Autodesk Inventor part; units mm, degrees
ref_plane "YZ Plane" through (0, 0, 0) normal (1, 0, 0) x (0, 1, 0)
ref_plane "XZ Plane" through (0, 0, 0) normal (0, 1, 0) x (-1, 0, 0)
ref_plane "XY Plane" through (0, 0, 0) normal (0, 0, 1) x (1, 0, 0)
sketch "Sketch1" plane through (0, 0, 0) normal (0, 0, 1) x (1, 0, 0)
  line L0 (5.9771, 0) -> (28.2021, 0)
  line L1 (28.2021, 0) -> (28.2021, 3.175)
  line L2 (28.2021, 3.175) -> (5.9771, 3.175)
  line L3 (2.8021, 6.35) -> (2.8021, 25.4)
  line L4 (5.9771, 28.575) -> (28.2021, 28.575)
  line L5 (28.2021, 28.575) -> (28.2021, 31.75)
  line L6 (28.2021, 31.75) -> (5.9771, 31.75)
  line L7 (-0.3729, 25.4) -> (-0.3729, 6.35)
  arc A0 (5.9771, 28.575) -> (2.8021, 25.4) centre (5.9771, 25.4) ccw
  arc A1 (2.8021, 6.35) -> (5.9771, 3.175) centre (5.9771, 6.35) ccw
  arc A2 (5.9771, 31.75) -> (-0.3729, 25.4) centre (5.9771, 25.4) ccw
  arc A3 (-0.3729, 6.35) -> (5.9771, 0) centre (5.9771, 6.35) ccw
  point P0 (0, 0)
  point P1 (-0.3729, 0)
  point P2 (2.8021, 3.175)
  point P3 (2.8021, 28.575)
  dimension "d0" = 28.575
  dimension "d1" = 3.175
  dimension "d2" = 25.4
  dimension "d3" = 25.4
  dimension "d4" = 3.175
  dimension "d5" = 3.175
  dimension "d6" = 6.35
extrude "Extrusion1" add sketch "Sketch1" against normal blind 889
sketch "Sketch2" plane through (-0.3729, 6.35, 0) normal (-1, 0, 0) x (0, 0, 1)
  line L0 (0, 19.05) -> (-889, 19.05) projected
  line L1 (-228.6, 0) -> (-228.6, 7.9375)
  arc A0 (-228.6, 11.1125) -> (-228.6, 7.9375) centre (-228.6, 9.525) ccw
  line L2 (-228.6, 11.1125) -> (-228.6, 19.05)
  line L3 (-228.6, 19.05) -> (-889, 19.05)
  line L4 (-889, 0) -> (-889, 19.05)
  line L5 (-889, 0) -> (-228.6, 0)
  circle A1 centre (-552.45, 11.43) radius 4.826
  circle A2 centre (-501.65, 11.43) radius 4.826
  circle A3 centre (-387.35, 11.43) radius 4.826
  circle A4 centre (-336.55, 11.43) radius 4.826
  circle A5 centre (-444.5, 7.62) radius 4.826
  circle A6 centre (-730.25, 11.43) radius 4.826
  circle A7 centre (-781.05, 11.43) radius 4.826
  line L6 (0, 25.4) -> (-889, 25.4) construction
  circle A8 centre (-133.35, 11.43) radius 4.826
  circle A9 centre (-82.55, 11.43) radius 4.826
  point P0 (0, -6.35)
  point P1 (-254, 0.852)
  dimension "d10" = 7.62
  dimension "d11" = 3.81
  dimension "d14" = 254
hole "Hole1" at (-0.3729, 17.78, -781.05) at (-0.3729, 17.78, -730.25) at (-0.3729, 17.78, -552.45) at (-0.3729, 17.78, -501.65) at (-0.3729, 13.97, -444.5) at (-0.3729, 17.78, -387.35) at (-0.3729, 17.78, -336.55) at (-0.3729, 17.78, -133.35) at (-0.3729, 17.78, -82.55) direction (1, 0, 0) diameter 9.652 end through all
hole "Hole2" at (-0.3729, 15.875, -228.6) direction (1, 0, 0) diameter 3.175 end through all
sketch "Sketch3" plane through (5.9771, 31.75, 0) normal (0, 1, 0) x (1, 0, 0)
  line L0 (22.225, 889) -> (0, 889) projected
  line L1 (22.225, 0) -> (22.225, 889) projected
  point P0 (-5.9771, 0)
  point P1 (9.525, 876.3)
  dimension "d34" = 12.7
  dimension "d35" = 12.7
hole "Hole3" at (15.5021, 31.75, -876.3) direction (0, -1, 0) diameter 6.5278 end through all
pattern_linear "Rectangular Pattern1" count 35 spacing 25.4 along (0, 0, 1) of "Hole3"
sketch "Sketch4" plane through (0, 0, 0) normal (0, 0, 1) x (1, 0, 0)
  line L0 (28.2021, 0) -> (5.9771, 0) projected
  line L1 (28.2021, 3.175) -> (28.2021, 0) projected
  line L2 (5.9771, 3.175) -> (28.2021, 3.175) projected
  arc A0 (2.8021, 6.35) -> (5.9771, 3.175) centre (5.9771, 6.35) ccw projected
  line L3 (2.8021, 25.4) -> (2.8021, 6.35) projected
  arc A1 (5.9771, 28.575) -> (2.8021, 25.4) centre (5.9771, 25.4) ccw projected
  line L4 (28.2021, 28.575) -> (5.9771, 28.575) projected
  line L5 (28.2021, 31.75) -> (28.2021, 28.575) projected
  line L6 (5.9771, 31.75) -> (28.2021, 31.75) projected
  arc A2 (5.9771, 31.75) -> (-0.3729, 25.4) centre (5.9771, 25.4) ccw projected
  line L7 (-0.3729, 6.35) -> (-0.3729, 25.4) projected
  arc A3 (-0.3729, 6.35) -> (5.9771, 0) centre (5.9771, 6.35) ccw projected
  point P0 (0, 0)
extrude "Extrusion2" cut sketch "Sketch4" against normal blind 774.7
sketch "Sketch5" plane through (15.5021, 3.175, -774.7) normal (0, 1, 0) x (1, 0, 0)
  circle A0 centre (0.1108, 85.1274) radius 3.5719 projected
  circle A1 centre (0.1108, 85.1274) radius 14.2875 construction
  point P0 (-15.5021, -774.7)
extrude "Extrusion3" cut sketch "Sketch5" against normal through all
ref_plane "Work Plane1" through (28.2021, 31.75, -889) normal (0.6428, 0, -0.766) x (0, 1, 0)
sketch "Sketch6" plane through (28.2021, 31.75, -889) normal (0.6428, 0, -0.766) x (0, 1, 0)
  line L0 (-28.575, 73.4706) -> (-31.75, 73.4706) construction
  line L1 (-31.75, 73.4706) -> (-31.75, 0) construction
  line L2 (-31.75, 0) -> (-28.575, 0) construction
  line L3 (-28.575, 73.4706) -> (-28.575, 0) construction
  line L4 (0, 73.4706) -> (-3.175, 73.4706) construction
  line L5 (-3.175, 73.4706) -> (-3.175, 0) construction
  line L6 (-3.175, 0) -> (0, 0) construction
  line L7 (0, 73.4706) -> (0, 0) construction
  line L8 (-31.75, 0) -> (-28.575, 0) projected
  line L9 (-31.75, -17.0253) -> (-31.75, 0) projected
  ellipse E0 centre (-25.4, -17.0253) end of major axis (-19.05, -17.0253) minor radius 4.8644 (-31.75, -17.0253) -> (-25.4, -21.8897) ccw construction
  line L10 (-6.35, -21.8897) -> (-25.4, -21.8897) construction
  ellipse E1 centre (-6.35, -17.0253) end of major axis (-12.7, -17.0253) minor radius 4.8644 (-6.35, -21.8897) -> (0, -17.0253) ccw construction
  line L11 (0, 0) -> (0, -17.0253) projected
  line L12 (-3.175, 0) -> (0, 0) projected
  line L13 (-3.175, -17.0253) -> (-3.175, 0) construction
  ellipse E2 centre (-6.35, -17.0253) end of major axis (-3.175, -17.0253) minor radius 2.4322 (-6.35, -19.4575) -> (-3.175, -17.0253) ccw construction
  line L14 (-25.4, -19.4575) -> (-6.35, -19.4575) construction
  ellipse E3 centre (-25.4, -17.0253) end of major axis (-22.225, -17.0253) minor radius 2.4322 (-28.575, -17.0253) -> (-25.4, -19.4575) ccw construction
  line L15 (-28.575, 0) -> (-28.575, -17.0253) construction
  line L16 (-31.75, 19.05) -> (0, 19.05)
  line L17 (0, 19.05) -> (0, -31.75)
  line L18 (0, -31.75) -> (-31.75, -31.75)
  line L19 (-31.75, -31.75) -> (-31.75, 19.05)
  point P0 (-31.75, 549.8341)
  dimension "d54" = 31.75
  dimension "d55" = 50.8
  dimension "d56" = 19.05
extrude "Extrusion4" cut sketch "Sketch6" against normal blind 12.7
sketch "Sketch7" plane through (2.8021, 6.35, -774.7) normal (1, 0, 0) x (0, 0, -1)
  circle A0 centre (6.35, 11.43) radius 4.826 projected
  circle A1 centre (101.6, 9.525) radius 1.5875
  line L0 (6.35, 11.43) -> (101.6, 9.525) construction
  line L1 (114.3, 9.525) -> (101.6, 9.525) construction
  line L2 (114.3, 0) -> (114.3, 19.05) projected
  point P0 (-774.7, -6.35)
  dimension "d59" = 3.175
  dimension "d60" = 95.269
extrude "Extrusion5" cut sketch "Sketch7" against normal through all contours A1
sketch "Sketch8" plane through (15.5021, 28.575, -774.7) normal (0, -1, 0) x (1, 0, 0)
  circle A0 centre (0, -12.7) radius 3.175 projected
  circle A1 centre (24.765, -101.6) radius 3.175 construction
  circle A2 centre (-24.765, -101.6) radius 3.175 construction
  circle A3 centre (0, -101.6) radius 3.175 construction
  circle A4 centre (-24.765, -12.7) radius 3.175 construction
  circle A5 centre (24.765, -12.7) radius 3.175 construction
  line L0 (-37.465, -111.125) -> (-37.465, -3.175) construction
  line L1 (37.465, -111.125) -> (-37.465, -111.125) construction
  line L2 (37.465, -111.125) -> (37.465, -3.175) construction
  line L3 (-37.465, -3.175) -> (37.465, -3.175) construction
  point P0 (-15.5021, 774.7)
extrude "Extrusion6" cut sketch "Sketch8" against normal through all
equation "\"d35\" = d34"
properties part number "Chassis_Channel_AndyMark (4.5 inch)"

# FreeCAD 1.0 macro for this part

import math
import FreeCAD as App
import Part
import Sketcher

V = App.Vector
Q = App.Units.Quantity


def add_polygon(sketch, points):
    """Adds a closed chain of lines whose ends are joined by coincident constraints."""
    first, n = sketch.GeometryCount, len(points)
    for a, b in zip(points, points[1:] + points[:1]):
        sketch.addGeometry(Part.LineSegment(App.Vector(*a, 0), App.Vector(*b, 0)), False)
    for i in range(n):
        sketch.addConstraint(Sketcher.Constraint("Coincident", first + i, 2, first + (i + 1) % n, 1))

doc = App.newDocument("Part")
body = doc.addObject("PartDesign::Body", "Body")

# Sketch on XY plane
sketch1 = doc.addObject("Sketcher::SketchObject", "Sketch")
body.addObject(sketch1)
sketch1.AttachmentSupport = (doc.XY_Plane, [""])
sketch1.MapMode = "FlatFace"
sketch1.addGeometry(Part.ArcOfCircle(Part.Circle(V(6, 6.3, 0), V(0, 0, 1), 6.3), math.radians(180), math.radians(270)), False)
sketch1.addGeometry(Part.LineSegment(V(6, 0, 0), V(28.2, 0, 0)), False)
sketch1.addGeometry(Part.LineSegment(V(28.2, 0, 0), V(28.2, 3.2, 0)), False)
sketch1.addGeometry(Part.LineSegment(V(28.2, 3.2, 0), V(6, 3.2, 0)), False)
sketch1.addGeometry(Part.ArcOfCircle(Part.Circle(V(6, 6.3, 0), V(0, 0, 1), 3.2), math.radians(180), math.radians(270)), False)
sketch1.addGeometry(Part.LineSegment(V(2.8, 6.3, 0), V(2.8, 25.4, 0)), False)
sketch1.addGeometry(Part.ArcOfCircle(Part.Circle(V(6, 25.4, 0), V(0, 0, 1), 3.2), math.radians(90), math.radians(180)), False)
sketch1.addGeometry(Part.LineSegment(V(6, 28.6, 0), V(28.2, 28.6, 0)), False)
sketch1.addGeometry(Part.LineSegment(V(28.2, 28.6, 0), V(28.2, 31.8, 0)), False)
sketch1.addGeometry(Part.LineSegment(V(28.2, 31.8, 0), V(6, 31.8, 0)), False)
sketch1.addGeometry(Part.ArcOfCircle(Part.Circle(V(6, 25.4, 0), V(0, 0, 1), 6.4), math.radians(90), math.radians(180)), False)
sketch1.addGeometry(Part.LineSegment(V(-0.4, 25.4, 0), V(-0.4, 6.3, 0)), False)
sketch1.addConstraint(Sketcher.Constraint("Tangent", 0, 2, 1, 1))
sketch1.addConstraint(Sketcher.Constraint("Coincident", 1, 2, 2, 1))
sketch1.addConstraint(Sketcher.Constraint("Coincident", 2, 2, 3, 1))
sketch1.addConstraint(Sketcher.Constraint("Tangent", 3, 2, 4, 2))
sketch1.addConstraint(Sketcher.Constraint("Tangent", 4, 1, 5, 1))
sketch1.addConstraint(Sketcher.Constraint("Tangent", 5, 2, 6, 2))
sketch1.addConstraint(Sketcher.Constraint("Tangent", 6, 1, 7, 1))
sketch1.addConstraint(Sketcher.Constraint("Coincident", 7, 2, 8, 1))
sketch1.addConstraint(Sketcher.Constraint("Coincident", 8, 2, 9, 1))
sketch1.addConstraint(Sketcher.Constraint("Tangent", 9, 2, 10, 1))
sketch1.addConstraint(Sketcher.Constraint("Tangent", 10, 2, 11, 1))
sketch1.addConstraint(Sketcher.Constraint("Tangent", 11, 2, 0, 1))
sketch1.addConstraint(Sketcher.Constraint("Horizontal", 1))
sketch1.addConstraint(Sketcher.Constraint("Vertical", 2))
sketch1.addConstraint(Sketcher.Constraint("Horizontal", 3))
sketch1.addConstraint(Sketcher.Constraint("Vertical", 5))
sketch1.addConstraint(Sketcher.Constraint("Horizontal", 7))
sketch1.addConstraint(Sketcher.Constraint("Vertical", 8))
sketch1.addConstraint(Sketcher.Constraint("Horizontal", 9))
sketch1.addConstraint(Sketcher.Constraint("Vertical", 11))
sketch1.addConstraint(Sketcher.Constraint("Coincident", 4, 3, 0, 3))
sketch1.addConstraint(Sketcher.Constraint("Coincident", 10, 3, 6, 3))
sketch1.addConstraint(Sketcher.Constraint("Equal", 4, 6))
sketch1.addConstraint(Sketcher.Constraint("PointOnObject", 0, 2, -1))
sketch1.addConstraint(Sketcher.Constraint("Vertical", 2, 2, 7, 2))
sketch1.addConstraint(Sketcher.Constraint("Radius", 0, Q("0.25 in")))
sketch1.addConstraint(Sketcher.Constraint("DistanceY", -1, 1, 6, 3, Q("1 in")))
sketch1.addConstraint(Sketcher.Constraint("Radius", 4, Q("0.125 in")))
sketch1.addConstraint(Sketcher.Constraint("DistanceX", 5, 2, 7, 2, Q("1 in")))
sketch1.addConstraint(Sketcher.Constraint("DistanceX", -1, 1, 0, 3, 5.977))
pad1 = doc.addObject("PartDesign::Pad", "Pad")
body.addObject(pad1)
pad1.Profile = sketch1
pad1.Length = Q("35 in")
pad1.Reversed = True

# Sketch on YZ plane
sketch2 = doc.addObject("Sketcher::SketchObject", "Sketch001")
body.addObject(sketch2)
sketch2.AttachmentSupport = (doc.YZ_Plane, [""])
sketch2.MapMode = "FlatFace"
sketch2.AttachmentOffset = App.Placement(V(0, 0, -0.3729), App.Rotation())
sketch2.addGeometry(Part.Circle(V(17.8, -781, 0), V(0, 0, 1), 4.8), False)
sketch2.addGeometry(Part.Circle(V(17.8, -730.2, 0), V(0, 0, 1), 4.8), False)
sketch2.addGeometry(Part.Circle(V(17.8, -552.5, 0), V(0, 0, 1), 4.8), False)
sketch2.addGeometry(Part.Circle(V(17.8, -501.6, 0), V(0, 0, 1), 4.8), False)
sketch2.addGeometry(Part.Circle(V(14, -444.5, 0), V(0, 0, 1), 4.8), False)
sketch2.addGeometry(Part.Circle(V(17.8, -387.4, 0), V(0, 0, 1), 4.8), False)
sketch2.addGeometry(Part.Circle(V(17.8, -336.6, 0), V(0, 0, 1), 4.8), False)
sketch2.addGeometry(Part.Circle(V(17.8, -133.3, 0), V(0, 0, 1), 4.8), False)
sketch2.addGeometry(Part.Circle(V(17.8, -82.5, 0), V(0, 0, 1), 4.8), False)
sketch2.addConstraint(Sketcher.Constraint("Equal", 0, 1))
sketch2.addConstraint(Sketcher.Constraint("Equal", 1, 2))
sketch2.addConstraint(Sketcher.Constraint("Equal", 2, 3))
sketch2.addConstraint(Sketcher.Constraint("Equal", 3, 4))
sketch2.addConstraint(Sketcher.Constraint("Equal", 4, 5))
sketch2.addConstraint(Sketcher.Constraint("Equal", 5, 6))
sketch2.addConstraint(Sketcher.Constraint("Equal", 6, 7))
sketch2.addConstraint(Sketcher.Constraint("Equal", 7, 8))
sketch2.addConstraint(Sketcher.Constraint("Vertical", 0, 3, 1, 3))
sketch2.addConstraint(Sketcher.Constraint("Vertical", 1, 3, 2, 3))
sketch2.addConstraint(Sketcher.Constraint("Vertical", 2, 3, 3, 3))
sketch2.addConstraint(Sketcher.Constraint("Vertical", 3, 3, 5, 3))
sketch2.addConstraint(Sketcher.Constraint("Vertical", 5, 3, 6, 3))
sketch2.addConstraint(Sketcher.Constraint("Vertical", 6, 3, 7, 3))
sketch2.addConstraint(Sketcher.Constraint("Vertical", 7, 3, 8, 3))
sketch2.addConstraint(Sketcher.Constraint("Diameter", 0, Q("0.38 in")))
sketch2.addConstraint(Sketcher.Constraint("DistanceY", 0, 3, 1, 3, Q("2 in")))
sketch2.addConstraint(Sketcher.Constraint("DistanceY", 1, 3, 2, 3, Q("7 in")))
sketch2.addConstraint(Sketcher.Constraint("DistanceY", 2, 3, 3, 3, Q("2 in")))
sketch2.addConstraint(Sketcher.Constraint("DistanceY", 5, 3, 6, 3, Q("2 in")))
sketch2.addConstraint(Sketcher.Constraint("DistanceY", 6, 3, 7, 3, Q("8 in")))
sketch2.addConstraint(Sketcher.Constraint("DistanceY", 7, 3, 8, 3, Q("2 in")))
sketch2.addConstraint(Sketcher.Constraint("DistanceX", -1, 1, 0, 3, Q("0.7 in")))
sketch2.addConstraint(Sketcher.Constraint("DistanceY", 4, 3, -1, 1, Q("17.5 in")))
sketch2.addConstraint(Sketcher.Constraint("DistanceY", 3, 3, 5, 3, Q("4.5 in")))
sketch2.addConstraint(Sketcher.Constraint("DistanceY", 0, 3, -1, 1, Q("30.75 in")))
sketch2.addConstraint(Sketcher.Constraint("DistanceX", -1, 1, 4, 3, Q("0.55 in")))
doc.recompute()
hole = doc.addObject("PartDesign::Hole", "Hole")
body.addObject(hole)
hole.Profile = sketch2
hole.ThreadType = "None"
hole.Diameter = Q("0.38 in")
hole.DepthType = "ThroughAll"
hole.Reversed = True

# Sketch on YZ plane
sketch3 = doc.addObject("Sketcher::SketchObject", "Sketch002")
body.addObject(sketch3)
sketch3.AttachmentSupport = (doc.YZ_Plane, [""])
sketch3.MapMode = "FlatFace"
sketch3.AttachmentOffset = App.Placement(V(0, 0, -0.3729), App.Rotation())
sketch3.addGeometry(Part.Circle(V(15.9, -228.6, 0), V(0, 0, 1), 1.6), False)
sketch3.addConstraint(Sketcher.Constraint("Diameter", 0, Q("0.125 in")))
sketch3.addConstraint(Sketcher.Constraint("DistanceY", 0, 3, -1, 1, Q("9 in")))
sketch3.addConstraint(Sketcher.Constraint("DistanceX", -1, 1, 0, 3, Q("0.625 in")))
doc.recompute()
hole2 = doc.addObject("PartDesign::Hole", "Hole001")
body.addObject(hole2)
hole2.Profile = sketch3
hole2.ThreadType = "None"
hole2.Diameter = Q("0.125 in")
hole2.DepthType = "ThroughAll"
hole2.Reversed = True

# Sketch on XZ plane
sketch4 = doc.addObject("Sketcher::SketchObject", "Sketch003")
body.addObject(sketch4)
sketch4.AttachmentSupport = (doc.XZ_Plane, [""])
sketch4.MapMode = "FlatFace"
sketch4.AttachmentOffset = App.Placement(V(0, 0, -1.25 * 25.4), App.Rotation())
sketch4.addGeometry(Part.Circle(V(15.5, -876.3, 0), V(0, 0, 1), 3.3), False)
sketch4.addConstraint(Sketcher.Constraint("Diameter", 0, Q("0.257 in")))
sketch4.addConstraint(Sketcher.Constraint("DistanceY", 0, 3, -1, 1, Q("34.5 in")))
sketch4.addConstraint(Sketcher.Constraint("DistanceX", -1, 1, 0, 3, 15.502))
doc.recompute()
hole3 = doc.addObject("PartDesign::Hole", "Hole002")
body.addObject(hole3)
hole3.Profile = sketch4
hole3.ThreadType = "None"
hole3.Diameter = Q("0.257 in")
hole3.DepthType = "ThroughAll"
hole3.Reversed = True
doc.recompute()

linearpattern = doc.addObject("PartDesign::LinearPattern", "LinearPattern")
body.addObject(linearpattern)
linearpattern.Originals = [hole3]
linearpattern.Direction = (doc.Z_Axis, [""])
linearpattern.Mode = "offset"
linearpattern.Offset = Q("1 in")
linearpattern.Occurrences = 35
body.Tip = linearpattern

# Sketch on XY plane
sketch5 = doc.addObject("Sketcher::SketchObject", "Sketch004")
body.addObject(sketch5)
sketch5.AttachmentSupport = (doc.XY_Plane, [""])
sketch5.MapMode = "FlatFace"
sketch5.addGeometry(Part.LineSegment(V(6, 0, 0), V(28.2, 0, 0)), False)
sketch5.addGeometry(Part.LineSegment(V(28.2, 0, 0), V(28.2, 3.2, 0)), False)
sketch5.addGeometry(Part.LineSegment(V(28.2, 3.2, 0), V(6, 3.2, 0)), False)
sketch5.addGeometry(Part.ArcOfCircle(Part.Circle(V(6, 6.3, 0), V(0, 0, 1), 3.2), math.radians(180), math.radians(270)), False)
sketch5.addGeometry(Part.LineSegment(V(2.8, 6.3, 0), V(2.8, 25.4, 0)), False)
sketch5.addGeometry(Part.ArcOfCircle(Part.Circle(V(6, 25.4, 0), V(0, 0, 1), 3.2), math.radians(90), math.radians(180)), False)
sketch5.addGeometry(Part.LineSegment(V(6, 28.6, 0), V(28.2, 28.6, 0)), False)
sketch5.addGeometry(Part.LineSegment(V(28.2, 28.6, 0), V(28.2, 31.8, 0)), False)
sketch5.addGeometry(Part.LineSegment(V(28.2, 31.8, 0), V(6, 31.8, 0)), False)
sketch5.addGeometry(Part.ArcOfCircle(Part.Circle(V(6, 25.4, 0), V(0, 0, 1), 6.4), math.radians(90), math.radians(180)), False)
sketch5.addGeometry(Part.LineSegment(V(-0.4, 25.4, 0), V(-0.4, 6.3, 0)), False)
sketch5.addGeometry(Part.ArcOfCircle(Part.Circle(V(6, 6.3, 0), V(0, 0, 1), 6.3), math.radians(180), math.radians(270)), False)
sketch5.addConstraint(Sketcher.Constraint("Coincident", 0, 2, 1, 1))
sketch5.addConstraint(Sketcher.Constraint("Coincident", 1, 2, 2, 1))
sketch5.addConstraint(Sketcher.Constraint("Tangent", 2, 2, 3, 2))
sketch5.addConstraint(Sketcher.Constraint("Tangent", 3, 1, 4, 1))
sketch5.addConstraint(Sketcher.Constraint("Tangent", 4, 2, 5, 2))
sketch5.addConstraint(Sketcher.Constraint("Tangent", 5, 1, 6, 1))
sketch5.addConstraint(Sketcher.Constraint("Coincident", 6, 2, 7, 1))
sketch5.addConstraint(Sketcher.Constraint("Coincident", 7, 2, 8, 1))
sketch5.addConstraint(Sketcher.Constraint("Tangent", 8, 2, 9, 1))
sketch5.addConstraint(Sketcher.Constraint("Tangent", 9, 2, 10, 1))
sketch5.addConstraint(Sketcher.Constraint("Tangent", 10, 2, 11, 1))
sketch5.addConstraint(Sketcher.Constraint("Tangent", 11, 2, 0, 1))
sketch5.addConstraint(Sketcher.Constraint("Horizontal", 0))
sketch5.addConstraint(Sketcher.Constraint("Vertical", 1))
sketch5.addConstraint(Sketcher.Constraint("Horizontal", 2))
sketch5.addConstraint(Sketcher.Constraint("Vertical", 4))
sketch5.addConstraint(Sketcher.Constraint("Horizontal", 6))
sketch5.addConstraint(Sketcher.Constraint("Vertical", 7))
sketch5.addConstraint(Sketcher.Constraint("Horizontal", 8))
sketch5.addConstraint(Sketcher.Constraint("Vertical", 10))
sketch5.addConstraint(Sketcher.Constraint("Coincident", 9, 3, 5, 3))
sketch5.addConstraint(Sketcher.Constraint("Coincident", 11, 3, 3, 3))
sketch5.addConstraint(Sketcher.Constraint("Equal", 3, 5))
sketch5.addConstraint(Sketcher.Constraint("PointOnObject", 0, 2, -1))
sketch5.addConstraint(Sketcher.Constraint("Vertical", 1, 2, 6, 2))
sketch5.addConstraint(Sketcher.Constraint("Radius", 9, Q("0.25 in")))
sketch5.addConstraint(Sketcher.Constraint("DistanceY", -1, 1, 5, 3, Q("1 in")))
sketch5.addConstraint(Sketcher.Constraint("Radius", 3, Q("0.125 in")))
sketch5.addConstraint(Sketcher.Constraint("DistanceX", 4, 2, 6, 2, Q("1 in")))
sketch5.addConstraint(Sketcher.Constraint("DistanceX", -1, 1, 3, 3, 5.977))
pocket1 = doc.addObject("PartDesign::Pocket", "Pocket")
body.addObject(pocket1)
pocket1.Profile = sketch5
pocket1.Length = Q("30.5 in")

# Sketch on XZ plane
sketch6 = doc.addObject("Sketcher::SketchObject", "Sketch005")
body.addObject(sketch6)
sketch6.AttachmentSupport = (doc.XZ_Plane, [""])
sketch6.MapMode = "FlatFace"
sketch6.AttachmentOffset = App.Placement(V(0, 0, -0.125 * 25.4), App.Rotation())
sketch6.addGeometry(Part.Circle(V(15.6, -859.8, 0), V(0, 0, 1), 3.6), False)
sketch6.addConstraint(Sketcher.Constraint("Diameter", 0, Q("0.281252 in")))
sketch6.addConstraint(Sketcher.Constraint("DistanceX", -1, 1, 0, 3, 15.613))
sketch6.addConstraint(Sketcher.Constraint("DistanceY", 0, 3, -1, 1, 859.8274))
pocket2 = doc.addObject("PartDesign::Pocket", "Pocket001")
body.addObject(pocket2)
pocket2.Profile = sketch6
pocket2.Type = "ThroughAll"
pocket2.Reversed = True

# Sketch on an angled plane
sketch7 = doc.addObject("Sketcher::SketchObject", "Sketch006")
body.addObject(sketch7)
sketch7.Placement = App.Placement(V(28.2021, 31.75, -889), App.Rotation(V(0, 1, 0), V(0.766044443, 0, 0.64278761), V(0.64278761, 0, -0.766044443), "ZXY"))
add_polygon(sketch7, [(-32, 19), (-32, -32), (0, -32), (0, 19)])  # lines 0-3
sketch7.addConstraint(Sketcher.Constraint("Vertical", 0))
sketch7.addConstraint(Sketcher.Constraint("Horizontal", 1))
sketch7.addConstraint(Sketcher.Constraint("Vertical", 2))
sketch7.addConstraint(Sketcher.Constraint("Horizontal", 3))
sketch7.addConstraint(Sketcher.Constraint("PointOnObject", 1, 2, -2))
sketch7.addConstraint(Sketcher.Constraint("DistanceY", 0, 2, 0, 1, Q("2 in")))
sketch7.addConstraint(Sketcher.Constraint("DistanceX", 1, 1, 1, 2, Q("1.25 in")))
sketch7.addConstraint(Sketcher.Constraint("DistanceY", 0, 2, -1, 1, Q("1.25 in")))
pocket3 = doc.addObject("PartDesign::Pocket", "Pocket002")
body.addObject(pocket3)
pocket3.Profile = sketch7
pocket3.Length = Q("0.5 in")

# Sketch on YZ plane
sketch8 = doc.addObject("Sketcher::SketchObject", "Sketch007")
body.addObject(sketch8)
sketch8.AttachmentSupport = (doc.YZ_Plane, [""])
sketch8.MapMode = "FlatFace"
sketch8.AttachmentOffset = App.Placement(V(0, 0, 2.8021), App.Rotation())
sketch8.addGeometry(Part.Circle(V(15.9, -876.3, 0), V(0, 0, 1), 1.6), False)
sketch8.addConstraint(Sketcher.Constraint("Diameter", 0, Q("0.125 in")))
sketch8.addConstraint(Sketcher.Constraint("DistanceY", 0, 3, -1, 1, Q("34.5 in")))
sketch8.addConstraint(Sketcher.Constraint("DistanceX", -1, 1, 0, 3, Q("0.625 in")))
pocket4 = doc.addObject("PartDesign::Pocket", "Pocket003")
body.addObject(pocket4)
pocket4.Profile = sketch8
pocket4.Type = "ThroughAll"

# Sketch on XZ plane
sketch9 = doc.addObject("Sketcher::SketchObject", "Sketch008")
body.addObject(sketch9)
sketch9.AttachmentSupport = (doc.XZ_Plane, [""])
sketch9.MapMode = "FlatFace"
sketch9.AttachmentOffset = App.Placement(V(0, 0, -1.125 * 25.4), App.Rotation())
sketch9.addGeometry(Part.Circle(V(15.5, -787.4, 0), V(0, 0, 1), 3.2), False)
sketch9.addConstraint(Sketcher.Constraint("Diameter", 0, Q("0.25 in")))
sketch9.addConstraint(Sketcher.Constraint("DistanceY", 0, 3, -1, 1, Q("31 in")))
sketch9.addConstraint(Sketcher.Constraint("DistanceX", -1, 1, 0, 3, 15.502))
pocket5 = doc.addObject("PartDesign::Pocket", "Pocket004")
body.addObject(pocket5)
pocket5.Profile = sketch9
pocket5.Type = "ThroughAll"

doc.recompute()
